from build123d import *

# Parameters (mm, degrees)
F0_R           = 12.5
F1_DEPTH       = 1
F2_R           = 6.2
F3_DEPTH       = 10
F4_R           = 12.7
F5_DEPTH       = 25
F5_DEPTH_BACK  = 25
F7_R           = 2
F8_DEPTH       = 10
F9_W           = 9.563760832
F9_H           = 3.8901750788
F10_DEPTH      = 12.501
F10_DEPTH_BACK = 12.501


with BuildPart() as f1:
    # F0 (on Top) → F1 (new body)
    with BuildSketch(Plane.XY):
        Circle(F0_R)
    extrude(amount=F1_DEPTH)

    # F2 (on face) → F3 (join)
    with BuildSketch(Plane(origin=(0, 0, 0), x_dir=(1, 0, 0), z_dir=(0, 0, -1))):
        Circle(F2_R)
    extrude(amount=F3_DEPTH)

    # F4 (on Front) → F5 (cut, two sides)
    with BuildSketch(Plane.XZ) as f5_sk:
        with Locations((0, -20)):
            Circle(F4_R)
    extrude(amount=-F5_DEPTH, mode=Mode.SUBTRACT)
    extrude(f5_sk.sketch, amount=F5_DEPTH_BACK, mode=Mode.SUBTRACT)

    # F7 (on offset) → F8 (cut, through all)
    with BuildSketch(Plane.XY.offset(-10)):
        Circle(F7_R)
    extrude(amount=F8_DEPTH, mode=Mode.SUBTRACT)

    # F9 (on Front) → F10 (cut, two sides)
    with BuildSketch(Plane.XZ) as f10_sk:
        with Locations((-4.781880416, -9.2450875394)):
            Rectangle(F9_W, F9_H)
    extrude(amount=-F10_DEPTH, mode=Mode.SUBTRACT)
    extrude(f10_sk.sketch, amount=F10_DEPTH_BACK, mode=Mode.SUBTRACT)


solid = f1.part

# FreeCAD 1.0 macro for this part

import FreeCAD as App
import Part
import Sketcher
Q = App.Units.Quantity


def add_polygon(sketch, points):
    """Adds a closed chain of lines whose ends are joined by coincident constraints."""
    first, n = sketch.GeometryCount, len(points)
    for a, b in zip(points, points[1:] + points[:1]):
        sketch.addGeometry(Part.LineSegment(App.Vector(*a, 0), App.Vector(*b, 0)), False)
    for i in range(n):
        sketch.addConstraint(Sketcher.Constraint("Coincident", first + i, 2, first + (i + 1) % n, 1))

doc = App.newDocument("Part")
body = doc.addObject("PartDesign::Body", "Body")

# Sketch on XY plane
sketch1 = body.newObject("Sketcher::SketchObject", "Sketch")
sketch1.AttachmentSupport = (doc.getObject("XY_Plane"), [""])
sketch1.MapMode = "FlatFace"
sketch1.addGeometry(Part.Circle(App.Vector(0, 0, 0), App.Vector(0, 0, 1), 12), False)
sketch1.addConstraint(Sketcher.Constraint("Coincident", 0, 3, -1, 1))
sketch1.addConstraint(Sketcher.Constraint("Diameter", 0, Q("25 mm")))
pad1 = body.newObject("PartDesign::Pad", "Pad")
pad1.Profile = sketch1
pad1.Length = 1

# Sketch on XY plane
sketch2 = body.newObject("Sketcher::SketchObject", "Sketch001")
sketch2.AttachmentSupport = (doc.getObject("XY_Plane"), [""])
sketch2.MapMode = "FlatFace"
sketch2.addGeometry(Part.Circle(App.Vector(0, 0, 0), App.Vector(0, 0, 1), 6), False)
sketch2.addConstraint(Sketcher.Constraint("Coincident", 0, 3, -1, 1))
sketch2.addConstraint(Sketcher.Constraint("Diameter", 0, Q("12.4 mm")))
pad2 = body.newObject("PartDesign::Pad", "Pad001")
pad2.Profile = sketch2
pad2.Length = 10
pad2.Reversed = True

# Sketch on XZ plane
sketch3 = body.newObject("Sketcher::SketchObject", "Sketch002")
sketch3.AttachmentSupport = (doc.getObject("XZ_Plane"), [""])
sketch3.MapMode = "FlatFace"
sketch3.addGeometry(Part.Circle(App.Vector(0, -20, 0), App.Vector(0, 0, 1), 13), False)
sketch3.addConstraint(Sketcher.Constraint("PointOnObject", 0, 3, -2))
sketch3.addConstraint(Sketcher.Constraint("Diameter", 0, Q("25.4 mm")))
sketch3.addConstraint(Sketcher.Constraint("DistanceY", 0, 3, -1, 1, Q("20 mm")))
pocket1 = body.newObject("PartDesign::Pocket", "Pocket")
pocket1.Profile = sketch3
pocket1.Type = "ThroughAll"
pocket1.Midplane = True

# Sketch on XY plane
sketch4 = body.newObject("Sketcher::SketchObject", "Sketch003")
sketch4.AttachmentSupport = (doc.getObject("XY_Plane"), [""])
sketch4.MapMode = "FlatFace"
sketch4.AttachmentOffset = App.Placement(App.Vector(0, 0, -10), App.Rotation())
sketch4.addGeometry(Part.Circle(App.Vector(0, 0, 0), App.Vector(0, 0, 1), 2), False)
sketch4.addConstraint(Sketcher.Constraint("Coincident", 0, 3, -1, 1))
sketch4.addConstraint(Sketcher.Constraint("Diameter", 0, Q("4 mm")))
pocket2 = body.newObject("PartDesign::Pocket", "Pocket001")
pocket2.Profile = sketch4
pocket2.Length = 10
pocket2.Reversed = True

# Sketch on XZ plane
sketch5 = body.newObject("Sketcher::SketchObject", "Sketch004")
sketch5.AttachmentSupport = (doc.getObject("XZ_Plane"), [""])
sketch5.MapMode = "FlatFace"
add_polygon(sketch5, [(-9.6, -7.3), (-9.6, -11.2), (0, -11.2), (0, -7.3)])  # lines 0-3
sketch5.addConstraint(Sketcher.Constraint("Vertical", 0))
sketch5.addConstraint(Sketcher.Constraint("Horizontal", 1))
sketch5.addConstraint(Sketcher.Constraint("Vertical", 2))
sketch5.addConstraint(Sketcher.Constraint("Horizontal", 3))
sketch5.addConstraint(Sketcher.Constraint("PointOnObject", 1, 2, -2))
sketch5.addConstraint(Sketcher.Constraint("DistanceY", 2, 2, -1, 1, Q("7.3 mm")))
sketch5.addConstraint(Sketcher.Constraint("DistanceX", 1, 1, 1, 2, Q("9.563761 mm")))
sketch5.addConstraint(Sketcher.Constraint("DistanceY", 0, 2, 0, 1, Q("3.890175 mm")))
pocket3 = body.newObject("PartDesign::Pocket", "Pocket002")
pocket3.Profile = sketch5
pocket3.Type = "ThroughAll"
pocket3.Midplane = True

doc.recompute()
